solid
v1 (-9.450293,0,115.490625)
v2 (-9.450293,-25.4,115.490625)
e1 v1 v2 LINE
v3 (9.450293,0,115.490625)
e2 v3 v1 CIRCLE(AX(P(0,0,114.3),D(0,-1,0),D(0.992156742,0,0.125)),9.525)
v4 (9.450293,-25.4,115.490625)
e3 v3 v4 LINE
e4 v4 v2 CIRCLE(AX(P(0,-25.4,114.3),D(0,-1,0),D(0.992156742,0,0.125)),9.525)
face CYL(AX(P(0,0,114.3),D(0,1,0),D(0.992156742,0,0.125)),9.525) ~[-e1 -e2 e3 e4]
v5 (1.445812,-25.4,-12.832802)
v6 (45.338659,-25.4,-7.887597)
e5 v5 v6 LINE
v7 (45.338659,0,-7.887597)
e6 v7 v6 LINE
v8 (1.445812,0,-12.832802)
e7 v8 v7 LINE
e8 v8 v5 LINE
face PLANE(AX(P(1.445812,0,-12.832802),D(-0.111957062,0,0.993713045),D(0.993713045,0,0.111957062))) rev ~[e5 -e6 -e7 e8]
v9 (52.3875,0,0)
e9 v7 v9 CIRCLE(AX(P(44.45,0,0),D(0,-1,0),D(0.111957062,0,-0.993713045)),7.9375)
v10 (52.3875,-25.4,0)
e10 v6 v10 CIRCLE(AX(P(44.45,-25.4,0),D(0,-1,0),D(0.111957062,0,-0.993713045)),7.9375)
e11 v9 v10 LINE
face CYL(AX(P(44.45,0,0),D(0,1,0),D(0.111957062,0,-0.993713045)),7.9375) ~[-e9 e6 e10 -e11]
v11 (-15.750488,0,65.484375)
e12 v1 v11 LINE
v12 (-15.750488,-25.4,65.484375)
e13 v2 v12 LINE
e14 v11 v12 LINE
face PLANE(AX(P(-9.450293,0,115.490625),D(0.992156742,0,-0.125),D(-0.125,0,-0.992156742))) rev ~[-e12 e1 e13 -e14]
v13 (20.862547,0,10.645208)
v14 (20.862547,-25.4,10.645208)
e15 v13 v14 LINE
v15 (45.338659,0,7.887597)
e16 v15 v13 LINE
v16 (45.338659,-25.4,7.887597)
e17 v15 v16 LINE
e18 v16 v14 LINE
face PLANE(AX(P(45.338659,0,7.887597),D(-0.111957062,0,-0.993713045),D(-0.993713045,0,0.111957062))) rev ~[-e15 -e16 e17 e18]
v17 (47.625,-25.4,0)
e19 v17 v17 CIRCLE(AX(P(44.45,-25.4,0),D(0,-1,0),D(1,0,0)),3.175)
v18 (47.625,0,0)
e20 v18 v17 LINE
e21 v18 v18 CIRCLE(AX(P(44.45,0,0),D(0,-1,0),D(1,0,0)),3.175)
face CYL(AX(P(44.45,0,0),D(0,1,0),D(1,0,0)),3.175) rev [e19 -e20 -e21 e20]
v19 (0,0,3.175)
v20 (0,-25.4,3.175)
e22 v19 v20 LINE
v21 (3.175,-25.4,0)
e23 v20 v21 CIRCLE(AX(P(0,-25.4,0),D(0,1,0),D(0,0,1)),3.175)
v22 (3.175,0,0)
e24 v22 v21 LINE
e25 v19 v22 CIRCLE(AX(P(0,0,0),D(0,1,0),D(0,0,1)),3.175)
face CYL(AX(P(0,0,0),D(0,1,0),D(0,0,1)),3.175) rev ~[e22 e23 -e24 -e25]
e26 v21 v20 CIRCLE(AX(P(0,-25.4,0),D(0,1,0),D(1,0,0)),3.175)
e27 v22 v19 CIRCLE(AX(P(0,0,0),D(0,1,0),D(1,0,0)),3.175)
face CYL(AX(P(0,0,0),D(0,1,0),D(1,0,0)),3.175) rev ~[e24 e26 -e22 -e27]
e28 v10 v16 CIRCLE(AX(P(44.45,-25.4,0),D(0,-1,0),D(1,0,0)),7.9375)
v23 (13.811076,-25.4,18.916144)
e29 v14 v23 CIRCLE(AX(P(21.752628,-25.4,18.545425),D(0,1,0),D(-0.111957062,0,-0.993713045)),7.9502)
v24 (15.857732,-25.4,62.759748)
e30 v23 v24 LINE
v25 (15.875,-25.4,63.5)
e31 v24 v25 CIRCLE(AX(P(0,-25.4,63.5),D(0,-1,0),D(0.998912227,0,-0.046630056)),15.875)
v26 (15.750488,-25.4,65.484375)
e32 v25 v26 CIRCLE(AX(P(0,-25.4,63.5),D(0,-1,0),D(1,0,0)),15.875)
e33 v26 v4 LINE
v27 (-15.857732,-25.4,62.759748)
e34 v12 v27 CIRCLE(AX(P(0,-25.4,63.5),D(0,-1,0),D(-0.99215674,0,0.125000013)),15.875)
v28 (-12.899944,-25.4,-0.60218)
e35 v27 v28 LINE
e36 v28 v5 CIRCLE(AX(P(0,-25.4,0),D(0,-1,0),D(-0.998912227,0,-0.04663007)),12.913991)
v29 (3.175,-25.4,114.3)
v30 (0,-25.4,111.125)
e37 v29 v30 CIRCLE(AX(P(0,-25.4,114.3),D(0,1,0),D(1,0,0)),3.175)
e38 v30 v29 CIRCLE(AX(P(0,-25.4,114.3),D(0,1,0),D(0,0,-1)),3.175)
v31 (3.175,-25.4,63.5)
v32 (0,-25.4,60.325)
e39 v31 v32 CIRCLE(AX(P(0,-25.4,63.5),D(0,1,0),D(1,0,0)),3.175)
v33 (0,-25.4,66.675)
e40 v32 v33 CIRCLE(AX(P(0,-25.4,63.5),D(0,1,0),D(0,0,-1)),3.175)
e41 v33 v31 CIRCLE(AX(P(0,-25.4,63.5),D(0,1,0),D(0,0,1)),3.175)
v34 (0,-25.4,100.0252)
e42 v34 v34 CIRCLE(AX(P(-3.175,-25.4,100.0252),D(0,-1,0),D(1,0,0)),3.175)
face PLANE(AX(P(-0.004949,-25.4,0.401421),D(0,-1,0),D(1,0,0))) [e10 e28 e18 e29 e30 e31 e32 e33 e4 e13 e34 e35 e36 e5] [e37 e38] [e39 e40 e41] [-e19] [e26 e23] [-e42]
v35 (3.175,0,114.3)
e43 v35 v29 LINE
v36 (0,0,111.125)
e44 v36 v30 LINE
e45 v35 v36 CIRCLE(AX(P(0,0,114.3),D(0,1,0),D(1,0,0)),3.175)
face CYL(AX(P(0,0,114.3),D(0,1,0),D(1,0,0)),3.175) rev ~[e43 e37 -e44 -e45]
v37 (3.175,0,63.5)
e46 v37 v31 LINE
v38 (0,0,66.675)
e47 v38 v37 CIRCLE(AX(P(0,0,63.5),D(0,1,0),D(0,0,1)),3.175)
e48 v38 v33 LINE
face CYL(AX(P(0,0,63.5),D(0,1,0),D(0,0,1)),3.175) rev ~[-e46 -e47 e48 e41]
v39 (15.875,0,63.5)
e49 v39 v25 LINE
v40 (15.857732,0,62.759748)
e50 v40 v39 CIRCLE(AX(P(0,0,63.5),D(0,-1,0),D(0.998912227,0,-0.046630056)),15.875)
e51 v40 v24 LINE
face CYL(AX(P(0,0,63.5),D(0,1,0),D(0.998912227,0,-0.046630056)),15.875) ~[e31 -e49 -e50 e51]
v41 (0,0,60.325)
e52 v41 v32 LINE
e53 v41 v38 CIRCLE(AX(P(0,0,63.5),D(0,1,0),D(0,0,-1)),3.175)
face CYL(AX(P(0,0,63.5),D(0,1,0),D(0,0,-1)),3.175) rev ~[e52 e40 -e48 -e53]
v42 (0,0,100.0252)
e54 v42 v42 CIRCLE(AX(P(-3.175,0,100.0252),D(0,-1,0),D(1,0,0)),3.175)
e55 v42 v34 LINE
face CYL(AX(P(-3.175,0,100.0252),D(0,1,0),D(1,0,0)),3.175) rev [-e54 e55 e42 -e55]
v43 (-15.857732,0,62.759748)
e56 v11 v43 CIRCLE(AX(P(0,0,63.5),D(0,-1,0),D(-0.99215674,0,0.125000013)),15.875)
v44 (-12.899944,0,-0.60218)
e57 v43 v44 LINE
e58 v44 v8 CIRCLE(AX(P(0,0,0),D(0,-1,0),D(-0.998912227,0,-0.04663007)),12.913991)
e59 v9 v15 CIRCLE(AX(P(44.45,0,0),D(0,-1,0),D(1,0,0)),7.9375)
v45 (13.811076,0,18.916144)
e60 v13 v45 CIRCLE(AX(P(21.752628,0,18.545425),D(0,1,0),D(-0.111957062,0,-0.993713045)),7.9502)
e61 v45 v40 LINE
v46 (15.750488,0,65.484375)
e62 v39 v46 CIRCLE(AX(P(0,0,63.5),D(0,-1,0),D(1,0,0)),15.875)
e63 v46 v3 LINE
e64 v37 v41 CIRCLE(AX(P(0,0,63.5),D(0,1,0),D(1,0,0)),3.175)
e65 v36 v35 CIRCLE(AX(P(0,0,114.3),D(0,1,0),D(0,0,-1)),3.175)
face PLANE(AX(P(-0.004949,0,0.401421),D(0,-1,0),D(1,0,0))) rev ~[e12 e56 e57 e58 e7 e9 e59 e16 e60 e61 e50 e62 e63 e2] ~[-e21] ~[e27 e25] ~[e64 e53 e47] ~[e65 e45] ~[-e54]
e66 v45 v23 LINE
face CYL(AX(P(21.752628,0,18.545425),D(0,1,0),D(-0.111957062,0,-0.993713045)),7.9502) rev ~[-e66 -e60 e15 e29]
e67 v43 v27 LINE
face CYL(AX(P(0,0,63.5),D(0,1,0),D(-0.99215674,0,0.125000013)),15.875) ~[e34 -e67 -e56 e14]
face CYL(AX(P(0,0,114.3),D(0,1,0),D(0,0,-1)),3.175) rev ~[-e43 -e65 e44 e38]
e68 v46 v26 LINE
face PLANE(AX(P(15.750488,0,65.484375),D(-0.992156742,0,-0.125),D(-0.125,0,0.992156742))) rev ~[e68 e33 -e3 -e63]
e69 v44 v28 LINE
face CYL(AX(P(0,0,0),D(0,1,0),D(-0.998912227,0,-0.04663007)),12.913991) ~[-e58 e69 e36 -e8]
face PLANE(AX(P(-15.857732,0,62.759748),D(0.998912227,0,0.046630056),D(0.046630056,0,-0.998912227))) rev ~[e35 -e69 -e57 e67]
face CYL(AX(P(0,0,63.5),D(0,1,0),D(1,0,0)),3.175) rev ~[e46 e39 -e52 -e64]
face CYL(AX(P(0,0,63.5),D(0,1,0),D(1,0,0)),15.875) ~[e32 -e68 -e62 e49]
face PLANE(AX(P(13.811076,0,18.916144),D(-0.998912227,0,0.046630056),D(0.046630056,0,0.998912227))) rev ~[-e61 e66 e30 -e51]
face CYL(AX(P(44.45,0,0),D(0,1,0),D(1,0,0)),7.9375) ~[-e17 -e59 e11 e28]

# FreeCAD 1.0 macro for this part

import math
import FreeCAD as App
import Part
import Sketcher
Q = App.Units.Quantity

doc = App.newDocument("Part")
body = doc.addObject("PartDesign::Body", "Body")

sketch1 = doc.addObject("Sketcher::SketchObject", "Sketch")
body.addObject(sketch1)
sketch1.AttachmentSupport = (doc.XZ_Plane, [""])
sketch1.MapMode = "FlatFace"
sketch1.addGeometry([
    Part.ArcOfCircle(Part.Circle(App.Vector(0, 63.5, 0), App.Vector(0, 0, 1), 15.9), math.radians(0), math.radians(7.18)),
    Part.LineSegment(App.Vector(15.8, 65.5, 0), App.Vector(9.5, 115.5, 0)),
    Part.ArcOfCircle(Part.Circle(App.Vector(0, 114.3, 0), App.Vector(0, 0, 1), 9.5), math.radians(7), math.radians(173)),
    Part.LineSegment(App.Vector(-9.5, 115.5, 0), App.Vector(-15.8, 65.5, 0)),
    Part.ArcOfCircle(Part.Circle(App.Vector(0, 63.5, 0), App.Vector(0, 0, 1), 15.9), math.radians(172.82), math.radians(182.67)),
    Part.LineSegment(App.Vector(-15.9, 62.8, 0), App.Vector(-12.9, -0.6, 0)),
    Part.ArcOfCircle(Part.Circle(App.Vector(0, 0, 0), App.Vector(0, 0, 1), 12.9), math.radians(-177), math.radians(-84)),
    Part.LineSegment(App.Vector(1.4, -12.8, 0), App.Vector(45.3, -7.9, 0)),
    Part.ArcOfCircle(Part.Circle(App.Vector(44.5, 0, 0), App.Vector(0, 0, 1), 7.9), math.radians(-84), math.radians(0)),
    Part.ArcOfCircle(Part.Circle(App.Vector(44.5, 0, 0), App.Vector(0, 0, 1), 7.9), math.radians(0), math.radians(84)),
    Part.LineSegment(App.Vector(45.3, 7.9, 0), App.Vector(20.9, 10.6, 0)),
    Part.ArcOfCircle(Part.Circle(App.Vector(21.8, 18.5, 0), App.Vector(0, 0, 1), 8), math.radians(177), math.radians(264)),
    Part.LineSegment(App.Vector(13.8, 18.9, 0), App.Vector(15.9, 62.8, 0)),
    Part.ArcOfCircle(Part.Circle(App.Vector(0, 63.5, 0), App.Vector(0, 0, 1), 15.9), math.radians(-2.67), math.radians(0)),
    Part.ArcOfCircle(Part.Circle(App.Vector(0, 0, 0), App.Vector(0, 0, 1), 3.2), math.radians(0), math.radians(90)),
    Part.ArcOfCircle(Part.Circle(App.Vector(0, 0, 0), App.Vector(0, 0, 1), 3.2), math.radians(90), math.radians(360)),
    Part.Circle(App.Vector(44.5, 0, 0), App.Vector(0, 0, 1), 3.2),
    Part.ArcOfCircle(Part.Circle(App.Vector(0, 63.5, 0), App.Vector(0, 0, 1), 3.2), math.radians(90), math.radians(270)),
    Part.ArcOfCircle(Part.Circle(App.Vector(0, 63.5, 0), App.Vector(0, 0, 1), 3.2), math.radians(0), math.radians(90)),
    Part.ArcOfCircle(Part.Circle(App.Vector(0, 63.5, 0), App.Vector(0, 0, 1), 3.2), math.radians(-90), math.radians(0)),
    Part.Circle(App.Vector(-3.2, 100, 0), App.Vector(0, 0, 1), 3.2),
    Part.ArcOfCircle(Part.Circle(App.Vector(0, 114.3, 0), App.Vector(0, 0, 1), 3.2), math.radians(0), math.radians(270)),
    Part.ArcOfCircle(Part.Circle(App.Vector(0, 114.3, 0), App.Vector(0, 0, 1), 3.2), math.radians(-90), math.radians(0)),
], False)
sketch1.addConstraint([
    Sketcher.Constraint("Tangent", 0, 2, 1, 1),
    Sketcher.Constraint("Tangent", 1, 2, 2, 1),
    Sketcher.Constraint("Tangent", 2, 2, 3, 1),
    Sketcher.Constraint("Tangent", 3, 2, 4, 1),
    Sketcher.Constraint("Tangent", 4, 2, 5, 1),
    Sketcher.Constraint("Tangent", 5, 2, 6, 1),
    Sketcher.Constraint("Tangent", 6, 2, 7, 1),
    Sketcher.Constraint("Tangent", 7, 2, 8, 1),
    Sketcher.Constraint("Tangent", 8, 2, 9, 1),
    Sketcher.Constraint("Tangent", 9, 2, 10, 1),
    Sketcher.Constraint("Tangent", 10, 2, 11, 2),
    Sketcher.Constraint("Tangent", 11, 1, 12, 1),
    Sketcher.Constraint("Tangent", 12, 2, 13, 1),
    Sketcher.Constraint("Tangent", 13, 2, 0, 1),
    Sketcher.Constraint("Tangent", 14, 1, 15, 2),
    Sketcher.Constraint("Coincident", 15, 1, 14, 2),
    Sketcher.Constraint("Tangent", 17, 1, 18, 2),
    Sketcher.Constraint("Tangent", 18, 1, 19, 2),
    Sketcher.Constraint("Tangent", 19, 1, 17, 2),
    Sketcher.Constraint("Tangent", 21, 1, 22, 2),
    Sketcher.Constraint("Coincident", 22, 1, 21, 2),
    Sketcher.Constraint("Coincident", 6, 3, -1, 1),
    Sketcher.Constraint("Coincident", 14, 3, -1, 1),
    Sketcher.Constraint("Coincident", 4, 3, 0, 3),
    Sketcher.Constraint("Coincident", 16, 3, 8, 3),
    Sketcher.Constraint("Coincident", 17, 3, 0, 3),
    Sketcher.Constraint("Coincident", 21, 3, 2, 3),
    Sketcher.Constraint("Equal", 0, 4),
    Sketcher.Constraint("Equal", 8, 9),
    Sketcher.Constraint("Equal", 4, 13),
    Sketcher.Constraint("Equal", 15, 16),
    Sketcher.Constraint("Equal", 16, 17),
    Sketcher.Constraint("Equal", 19, 20),
    Sketcher.Constraint("Equal", 20, 21),
    Sketcher.Constraint("Symmetric", 1, 2, 2, 2, -2),
    Sketcher.Constraint("Symmetric", 7, 2, 9, 2, -1),
    Sketcher.Constraint("PointOnObject", 8, 2, -1),
    Sketcher.Constraint("PointOnObject", 14, 1, -1),
    Sketcher.Constraint("PointOnObject", 15, 1, -2),
    Sketcher.Constraint("PointOnObject", 17, 1, -2),
    Sketcher.Constraint("PointOnObject", 19, 1, -2),
    Sketcher.Constraint("PointOnObject", 22, 1, -2),
    Sketcher.Constraint("Horizontal", 4, 2, 12, 2),
    Sketcher.Constraint("Horizontal", 19, 3, 13, 2),
    Sketcher.Constraint("Horizontal", 13, 2, 18, 1),
    Sketcher.Constraint("Horizontal", 22, 3, 21, 1),
    Sketcher.Constraint("Diameter", 16, Q("0.25 in")),
    Sketcher.Constraint("Radius", 0, Q("0.625 in")),
    Sketcher.Constraint("Radius", 2, Q("0.375 in")),
    Sketcher.Constraint("Radius", 8, Q("0.3125 in")),
    Sketcher.Constraint("Radius", 11, Q("0.313 in")),
    Sketcher.Constraint("DistanceY", 0, 3, 2, 3, Q("2 in")),
    Sketcher.Constraint("DistanceY", -1, 1, 0, 3, Q("2.5 in")),
    Sketcher.Constraint("DistanceX", -1, 1, 8, 3, Q("1.75 in")),
    Sketcher.Constraint("DistanceX", 20, 3, -1, 1, Q("0.125 in")),
    Sketcher.Constraint("DistanceY", -1, 1, 20, 3, Q("3.938 in")),
    Sketcher.Constraint("Radius", 6, 12.913991),
])
pad1 = doc.addObject("PartDesign::Pad", "Pad")
body.addObject(pad1)
pad1.Profile = sketch1
pad1.Length = Q("1 in")

doc.recompute()
